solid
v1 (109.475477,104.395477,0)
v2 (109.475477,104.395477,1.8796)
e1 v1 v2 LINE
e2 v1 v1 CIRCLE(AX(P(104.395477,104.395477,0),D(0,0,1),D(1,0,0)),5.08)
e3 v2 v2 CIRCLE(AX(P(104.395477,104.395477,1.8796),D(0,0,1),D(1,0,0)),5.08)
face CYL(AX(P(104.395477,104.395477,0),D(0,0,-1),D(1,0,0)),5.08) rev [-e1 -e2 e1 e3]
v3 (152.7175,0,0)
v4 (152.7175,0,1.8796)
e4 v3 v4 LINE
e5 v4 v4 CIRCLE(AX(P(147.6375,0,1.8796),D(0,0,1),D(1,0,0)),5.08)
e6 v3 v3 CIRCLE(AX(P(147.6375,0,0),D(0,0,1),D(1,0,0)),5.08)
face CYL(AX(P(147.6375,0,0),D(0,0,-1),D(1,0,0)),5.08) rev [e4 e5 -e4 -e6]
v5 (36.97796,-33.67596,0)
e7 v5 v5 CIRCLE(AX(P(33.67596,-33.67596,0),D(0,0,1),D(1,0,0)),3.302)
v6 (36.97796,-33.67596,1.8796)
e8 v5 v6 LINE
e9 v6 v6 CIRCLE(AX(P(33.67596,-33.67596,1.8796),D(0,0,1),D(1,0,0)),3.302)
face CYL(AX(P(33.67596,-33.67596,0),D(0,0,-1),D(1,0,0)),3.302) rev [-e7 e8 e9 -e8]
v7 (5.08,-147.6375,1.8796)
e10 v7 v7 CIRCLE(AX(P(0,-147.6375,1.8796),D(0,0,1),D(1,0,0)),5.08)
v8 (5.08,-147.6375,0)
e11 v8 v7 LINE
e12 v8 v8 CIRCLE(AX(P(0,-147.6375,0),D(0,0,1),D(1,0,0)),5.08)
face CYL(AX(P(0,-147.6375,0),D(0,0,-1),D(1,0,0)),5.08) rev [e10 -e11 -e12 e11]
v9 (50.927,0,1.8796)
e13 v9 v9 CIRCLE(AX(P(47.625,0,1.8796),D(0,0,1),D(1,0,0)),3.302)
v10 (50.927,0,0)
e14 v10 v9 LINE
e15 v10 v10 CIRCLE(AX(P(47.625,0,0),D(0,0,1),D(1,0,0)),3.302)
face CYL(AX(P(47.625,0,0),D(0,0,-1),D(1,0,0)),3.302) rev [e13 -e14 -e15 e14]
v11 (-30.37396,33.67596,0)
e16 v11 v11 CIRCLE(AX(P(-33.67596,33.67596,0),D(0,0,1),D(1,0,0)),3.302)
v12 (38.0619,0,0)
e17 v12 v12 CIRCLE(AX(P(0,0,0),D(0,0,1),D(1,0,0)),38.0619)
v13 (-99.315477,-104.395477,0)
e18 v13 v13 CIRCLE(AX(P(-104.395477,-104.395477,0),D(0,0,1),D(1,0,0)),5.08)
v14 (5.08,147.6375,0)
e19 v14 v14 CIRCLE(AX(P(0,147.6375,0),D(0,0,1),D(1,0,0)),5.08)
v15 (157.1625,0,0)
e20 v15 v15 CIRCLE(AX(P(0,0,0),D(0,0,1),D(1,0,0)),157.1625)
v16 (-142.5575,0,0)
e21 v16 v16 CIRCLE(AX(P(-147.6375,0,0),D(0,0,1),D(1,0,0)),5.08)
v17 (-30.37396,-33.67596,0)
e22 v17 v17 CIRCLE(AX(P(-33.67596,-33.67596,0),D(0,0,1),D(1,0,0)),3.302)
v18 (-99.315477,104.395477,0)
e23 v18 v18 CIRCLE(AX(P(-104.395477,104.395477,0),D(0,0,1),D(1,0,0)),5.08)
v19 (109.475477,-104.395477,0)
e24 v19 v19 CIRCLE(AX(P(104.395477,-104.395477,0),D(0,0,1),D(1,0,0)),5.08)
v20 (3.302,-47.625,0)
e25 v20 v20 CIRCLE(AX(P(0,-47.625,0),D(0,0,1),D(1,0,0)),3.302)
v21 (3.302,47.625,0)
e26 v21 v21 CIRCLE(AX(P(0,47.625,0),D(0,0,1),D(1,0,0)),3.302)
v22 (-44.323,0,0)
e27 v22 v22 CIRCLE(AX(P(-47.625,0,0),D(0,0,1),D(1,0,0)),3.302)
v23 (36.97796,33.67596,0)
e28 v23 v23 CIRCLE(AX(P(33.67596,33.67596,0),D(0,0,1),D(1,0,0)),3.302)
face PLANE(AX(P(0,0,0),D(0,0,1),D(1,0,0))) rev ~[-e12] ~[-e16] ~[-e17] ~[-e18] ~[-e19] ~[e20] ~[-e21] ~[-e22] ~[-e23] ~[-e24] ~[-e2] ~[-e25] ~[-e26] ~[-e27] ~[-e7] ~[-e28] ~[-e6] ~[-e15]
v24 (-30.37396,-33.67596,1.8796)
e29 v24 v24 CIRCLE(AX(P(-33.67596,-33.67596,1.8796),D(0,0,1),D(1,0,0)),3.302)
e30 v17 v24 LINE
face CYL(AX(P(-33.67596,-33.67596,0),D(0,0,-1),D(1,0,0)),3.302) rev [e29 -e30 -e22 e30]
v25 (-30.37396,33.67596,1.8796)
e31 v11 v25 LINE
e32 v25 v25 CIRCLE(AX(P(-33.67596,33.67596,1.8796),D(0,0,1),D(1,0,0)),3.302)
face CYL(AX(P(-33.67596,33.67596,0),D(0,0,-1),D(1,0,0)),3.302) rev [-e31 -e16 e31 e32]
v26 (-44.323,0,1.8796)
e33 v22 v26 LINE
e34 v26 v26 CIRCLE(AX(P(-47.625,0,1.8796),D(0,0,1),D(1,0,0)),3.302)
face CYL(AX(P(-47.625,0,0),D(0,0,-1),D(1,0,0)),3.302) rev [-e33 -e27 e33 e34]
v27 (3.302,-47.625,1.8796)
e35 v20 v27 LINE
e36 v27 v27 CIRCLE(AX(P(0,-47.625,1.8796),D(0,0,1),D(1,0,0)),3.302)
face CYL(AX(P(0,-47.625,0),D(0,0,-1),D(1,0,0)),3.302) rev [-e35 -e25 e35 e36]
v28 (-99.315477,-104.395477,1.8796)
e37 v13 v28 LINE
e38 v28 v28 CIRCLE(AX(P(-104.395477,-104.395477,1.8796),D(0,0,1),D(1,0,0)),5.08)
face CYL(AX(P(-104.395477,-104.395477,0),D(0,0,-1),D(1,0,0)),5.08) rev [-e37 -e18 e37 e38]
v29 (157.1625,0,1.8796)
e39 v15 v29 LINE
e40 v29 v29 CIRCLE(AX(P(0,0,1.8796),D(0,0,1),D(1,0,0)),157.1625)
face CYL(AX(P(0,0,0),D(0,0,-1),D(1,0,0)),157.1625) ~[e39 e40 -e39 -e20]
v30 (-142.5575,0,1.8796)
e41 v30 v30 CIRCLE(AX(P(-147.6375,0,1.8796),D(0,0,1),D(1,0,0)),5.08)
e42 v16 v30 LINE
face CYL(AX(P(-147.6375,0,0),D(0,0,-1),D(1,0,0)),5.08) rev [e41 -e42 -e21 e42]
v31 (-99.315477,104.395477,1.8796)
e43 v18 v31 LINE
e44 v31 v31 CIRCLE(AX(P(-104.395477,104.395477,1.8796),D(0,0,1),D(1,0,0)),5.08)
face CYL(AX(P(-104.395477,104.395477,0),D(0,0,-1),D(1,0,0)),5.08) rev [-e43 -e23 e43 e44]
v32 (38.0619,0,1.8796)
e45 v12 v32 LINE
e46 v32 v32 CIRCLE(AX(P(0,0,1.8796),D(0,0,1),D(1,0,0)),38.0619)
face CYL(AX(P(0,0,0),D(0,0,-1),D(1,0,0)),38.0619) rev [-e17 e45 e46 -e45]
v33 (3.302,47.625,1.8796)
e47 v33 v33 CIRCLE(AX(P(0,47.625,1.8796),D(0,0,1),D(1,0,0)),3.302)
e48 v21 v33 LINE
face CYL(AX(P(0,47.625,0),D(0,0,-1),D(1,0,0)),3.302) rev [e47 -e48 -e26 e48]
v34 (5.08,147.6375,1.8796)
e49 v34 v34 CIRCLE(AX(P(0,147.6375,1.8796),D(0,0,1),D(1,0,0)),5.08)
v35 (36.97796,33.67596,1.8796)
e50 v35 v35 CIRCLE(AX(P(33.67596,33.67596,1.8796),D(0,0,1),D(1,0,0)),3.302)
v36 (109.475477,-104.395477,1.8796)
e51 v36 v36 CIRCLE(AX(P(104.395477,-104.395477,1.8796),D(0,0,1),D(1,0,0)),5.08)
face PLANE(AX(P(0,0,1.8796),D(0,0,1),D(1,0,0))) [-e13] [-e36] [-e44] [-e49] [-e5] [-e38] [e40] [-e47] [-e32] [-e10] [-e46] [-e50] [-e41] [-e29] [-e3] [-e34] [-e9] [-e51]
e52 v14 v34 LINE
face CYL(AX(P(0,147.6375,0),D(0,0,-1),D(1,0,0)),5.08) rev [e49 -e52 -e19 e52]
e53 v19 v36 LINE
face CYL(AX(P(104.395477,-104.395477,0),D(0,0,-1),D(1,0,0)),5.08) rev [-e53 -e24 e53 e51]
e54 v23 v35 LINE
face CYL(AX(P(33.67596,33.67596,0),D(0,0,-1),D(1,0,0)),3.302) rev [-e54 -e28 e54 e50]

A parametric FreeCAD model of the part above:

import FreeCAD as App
import Part
import Sketcher
Q = App.Units.Quantity

doc = App.newDocument("Part")
body = doc.addObject("PartDesign::Body", "Body")

sketch1 = body.newObject("Sketcher::SketchObject", "Sketch")
sketch1.AttachmentSupport = (doc.getObject("XY_Plane"), [""])
sketch1.MapMode = "FlatFace"
sketch1.addGeometry([
    Part.Circle(App.Vector(0, 0, 0), App.Vector(0, 0, 1), 157.1625),
    Part.Circle(App.Vector(-104.395477, -104.395477, 0), App.Vector(0, 0, 1), 5.08),
    Part.Circle(App.Vector(-33.67596, -33.67596, 0), App.Vector(0, 0, 1), 3.302),
    Part.Circle(App.Vector(0, -147.6375, 0), App.Vector(0, 0, 1), 5.08),
    Part.Circle(App.Vector(104.395477, -104.395477, 0), App.Vector(0, 0, 1), 5.08),
    Part.Circle(App.Vector(0, -47.625, 0), App.Vector(0, 0, 1), 3.302),
    Part.Circle(App.Vector(33.67596, -33.67596, 0), App.Vector(0, 0, 1), 3.302),
    Part.Circle(App.Vector(0, 0, 0), App.Vector(0, 0, 1), 38.0619),
    Part.Circle(App.Vector(-147.6375, 0, 0), App.Vector(0, 0, 1), 5.08),
    Part.Circle(App.Vector(-47.625, 0, 0), App.Vector(0, 0, 1), 3.302),
    Part.Circle(App.Vector(-33.67596, 33.67596, 0), App.Vector(0, 0, 1), 3.302),
    Part.Circle(App.Vector(-104.395477, 104.395477, 0), App.Vector(0, 0, 1), 5.08),
    Part.Circle(App.Vector(33.67596, 33.67596, 0), App.Vector(0, 0, 1), 3.302),
    Part.Circle(App.Vector(47.625, 0, 0), App.Vector(0, 0, 1), 3.302),
    Part.Circle(App.Vector(0, 47.625, 0), App.Vector(0, 0, 1), 3.302),
    Part.Circle(App.Vector(147.6375, 0, 0), App.Vector(0, 0, 1), 5.08),
    Part.Circle(App.Vector(0, 147.6375, 0), App.Vector(0, 0, 1), 5.08),
    Part.Circle(App.Vector(104.395477, 104.395477, 0), App.Vector(0, 0, 1), 5.08),
], False)
sketch1.addConstraint([
    Sketcher.Constraint("Coincident", 0, 3, -1, 1),
    Sketcher.Constraint("Coincident", 7, 3, -1, 1),
    Sketcher.Constraint("Equal", 1, 3),
    Sketcher.Constraint("Equal", 3, 4),
    Sketcher.Constraint("Equal", 2, 5),
    Sketcher.Constraint("Equal", 5, 6),
    Sketcher.Constraint("Equal", 4, 8),
    Sketcher.Constraint("Equal", 6, 9),
    Sketcher.Constraint("Equal", 9, 10),
    Sketcher.Constraint("Equal", 8, 11),
    Sketcher.Constraint("Equal", 10, 12),
    Sketcher.Constraint("Equal", 12, 13),
    Sketcher.Constraint("Equal", 13, 14),
    Sketcher.Constraint("Equal", 11, 15),
    Sketcher.Constraint("Equal", 15, 16),
    Sketcher.Constraint("Equal", 16, 17),
    Sketcher.Constraint("Symmetric", 6, 3, 10, 3, -1, 1),
    Sketcher.Constraint("Symmetric", 4, 3, 11, 3, -1, 1),
    Sketcher.Constraint("Symmetric", 2, 3, 12, 3, -1, 1),
    Sketcher.Constraint("Symmetric", 9, 3, 13, 3, -1, 1),
    Sketcher.Constraint("Symmetric", 5, 3, 14, 3, -1, 1),
    Sketcher.Constraint("Symmetric", 8, 3, 15, 3, -1, 1),
    Sketcher.Constraint("Symmetric", 3, 3, 16, 3, -1, 1),
    Sketcher.Constraint("Symmetric", 1, 3, 17, 3, -1, 1),
    Sketcher.Constraint("Symmetric", 1, 3, 4, 3, -2),
    Sketcher.Constraint("Symmetric", 2, 3, 6, 3, -2),
    Sketcher.Constraint("PointOnObject", 3, 3, -2),
    Sketcher.Constraint("PointOnObject", 5, 3, -2),
    Sketcher.Constraint("PointOnObject", 8, 3, -1),
    Sketcher.Constraint("PointOnObject", 9, 3, -1),
    Sketcher.Constraint("Diameter", 1, Q("0.4 in")),
    Sketcher.Constraint("Diameter", 2, Q("0.26 in")),
    Sketcher.Constraint("Diameter", 0, Q("12.375 in")),
    Sketcher.Constraint("Diameter", 7, Q("2.997 in")),
    Sketcher.Constraint("DistanceY", 3, 3, -1, 1, Q("5.8125 in")),
    Sketcher.Constraint("DistanceY", 5, 3, -1, 1, Q("1.875 in")),
    Sketcher.Constraint("DistanceX", 8, 3, -1, 1, Q("5.8125 in")),
    Sketcher.Constraint("DistanceX", 9, 3, -1, 1, Q("1.875 in")),
    Sketcher.Constraint("DistanceX", 2, 3, -1, 1, 33.67596),
    Sketcher.Constraint("DistanceY", 2, 3, -1, 1, 33.67596),
    Sketcher.Constraint("DistanceX", 1, 3, -1, 1, 104.395477),
    Sketcher.Constraint("DistanceY", 1, 3, -1, 1, 104.395477),
])
pad1 = body.newObject("PartDesign::Pad", "Pad")
pad1.Profile = sketch1
pad1.Length = Q("0.074 in")

doc.recompute()
